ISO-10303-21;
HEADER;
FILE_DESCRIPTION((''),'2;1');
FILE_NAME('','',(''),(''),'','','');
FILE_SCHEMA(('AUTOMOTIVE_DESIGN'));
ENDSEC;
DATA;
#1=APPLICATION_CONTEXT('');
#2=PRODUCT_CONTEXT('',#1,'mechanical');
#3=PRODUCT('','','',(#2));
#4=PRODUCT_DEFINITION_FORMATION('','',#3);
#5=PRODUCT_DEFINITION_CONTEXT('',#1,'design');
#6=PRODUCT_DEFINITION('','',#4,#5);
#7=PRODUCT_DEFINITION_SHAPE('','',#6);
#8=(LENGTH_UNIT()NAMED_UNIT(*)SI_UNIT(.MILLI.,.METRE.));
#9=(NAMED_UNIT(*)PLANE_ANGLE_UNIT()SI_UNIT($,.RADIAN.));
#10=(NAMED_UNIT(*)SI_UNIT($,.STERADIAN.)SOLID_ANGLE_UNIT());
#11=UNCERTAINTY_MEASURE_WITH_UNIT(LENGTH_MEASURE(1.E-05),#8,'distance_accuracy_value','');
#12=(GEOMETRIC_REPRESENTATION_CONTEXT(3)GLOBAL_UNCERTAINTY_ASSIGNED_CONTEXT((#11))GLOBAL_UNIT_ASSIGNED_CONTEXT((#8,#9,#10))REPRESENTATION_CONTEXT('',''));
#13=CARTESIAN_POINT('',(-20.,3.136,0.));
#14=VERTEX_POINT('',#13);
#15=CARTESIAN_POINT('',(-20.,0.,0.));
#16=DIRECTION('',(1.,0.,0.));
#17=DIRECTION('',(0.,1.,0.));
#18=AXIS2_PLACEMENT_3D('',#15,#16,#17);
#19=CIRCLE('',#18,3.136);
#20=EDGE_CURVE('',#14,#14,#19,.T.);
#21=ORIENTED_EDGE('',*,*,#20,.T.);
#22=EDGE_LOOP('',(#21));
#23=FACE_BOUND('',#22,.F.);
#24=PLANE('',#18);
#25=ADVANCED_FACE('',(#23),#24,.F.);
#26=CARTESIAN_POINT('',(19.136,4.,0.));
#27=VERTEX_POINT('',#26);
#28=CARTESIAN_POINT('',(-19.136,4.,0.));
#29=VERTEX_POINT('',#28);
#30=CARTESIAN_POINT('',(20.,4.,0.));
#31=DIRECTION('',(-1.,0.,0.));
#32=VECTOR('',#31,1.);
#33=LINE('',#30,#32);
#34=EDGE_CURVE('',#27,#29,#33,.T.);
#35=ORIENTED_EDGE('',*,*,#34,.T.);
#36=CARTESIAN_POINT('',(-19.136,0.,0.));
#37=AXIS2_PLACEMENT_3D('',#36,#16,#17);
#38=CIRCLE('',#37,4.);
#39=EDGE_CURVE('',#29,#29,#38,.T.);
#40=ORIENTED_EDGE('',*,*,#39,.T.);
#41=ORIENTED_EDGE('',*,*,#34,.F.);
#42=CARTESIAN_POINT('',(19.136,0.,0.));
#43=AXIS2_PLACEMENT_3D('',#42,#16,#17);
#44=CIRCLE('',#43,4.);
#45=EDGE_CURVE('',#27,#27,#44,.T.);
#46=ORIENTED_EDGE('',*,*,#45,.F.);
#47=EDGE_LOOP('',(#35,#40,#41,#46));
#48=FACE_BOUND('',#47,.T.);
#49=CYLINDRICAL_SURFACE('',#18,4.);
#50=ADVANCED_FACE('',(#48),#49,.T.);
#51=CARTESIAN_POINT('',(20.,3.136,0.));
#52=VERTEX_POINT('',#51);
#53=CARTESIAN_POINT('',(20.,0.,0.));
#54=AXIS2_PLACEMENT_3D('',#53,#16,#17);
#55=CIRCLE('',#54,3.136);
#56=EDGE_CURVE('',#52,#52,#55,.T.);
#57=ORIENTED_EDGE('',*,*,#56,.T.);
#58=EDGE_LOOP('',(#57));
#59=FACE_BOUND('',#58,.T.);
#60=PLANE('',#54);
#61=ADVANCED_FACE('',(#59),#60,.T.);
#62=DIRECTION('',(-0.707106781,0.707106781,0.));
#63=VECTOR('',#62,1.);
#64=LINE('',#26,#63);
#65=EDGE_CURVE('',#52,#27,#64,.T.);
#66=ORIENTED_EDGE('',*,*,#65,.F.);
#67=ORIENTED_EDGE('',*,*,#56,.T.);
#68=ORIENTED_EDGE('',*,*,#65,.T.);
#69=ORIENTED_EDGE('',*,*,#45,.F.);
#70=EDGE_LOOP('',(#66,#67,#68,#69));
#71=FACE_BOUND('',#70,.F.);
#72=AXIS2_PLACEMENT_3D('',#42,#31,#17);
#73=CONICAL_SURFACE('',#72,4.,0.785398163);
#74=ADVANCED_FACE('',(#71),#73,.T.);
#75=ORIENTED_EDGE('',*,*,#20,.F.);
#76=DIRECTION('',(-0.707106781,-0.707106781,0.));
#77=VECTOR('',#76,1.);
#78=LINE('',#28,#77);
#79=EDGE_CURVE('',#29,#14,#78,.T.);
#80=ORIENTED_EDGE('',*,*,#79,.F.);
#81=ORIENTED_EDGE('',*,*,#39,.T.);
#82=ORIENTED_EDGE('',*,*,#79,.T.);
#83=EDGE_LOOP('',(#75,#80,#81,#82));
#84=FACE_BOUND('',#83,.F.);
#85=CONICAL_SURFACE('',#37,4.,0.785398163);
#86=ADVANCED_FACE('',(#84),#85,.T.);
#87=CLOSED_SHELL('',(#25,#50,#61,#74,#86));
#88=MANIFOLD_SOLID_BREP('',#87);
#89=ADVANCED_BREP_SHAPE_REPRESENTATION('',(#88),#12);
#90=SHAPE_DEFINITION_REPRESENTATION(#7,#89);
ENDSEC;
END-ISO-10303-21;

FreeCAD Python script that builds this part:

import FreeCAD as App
import Part
import Sketcher

V = App.Vector
Q = App.Units.Quantity


def edges_at(feature, points):
    """Names of the edges that pass closest to the given points."""
    edges = feature.Shape.Edges
    near = lambda p: min(range(len(edges)), key=lambda i: edges[i].distToShape(Part.Vertex(*p))[0])
    return sorted({f"Edge{near(p) + 1}" for p in points})

doc = App.newDocument("Part")
body = doc.addObject("PartDesign::Body", "Body")

# Sketch on XY plane
sketch1 = doc.addObject("Sketcher::SketchObject", "Sketch")
body.addObject(sketch1)
sketch1.AttachmentSupport = (doc.XY_Plane, [""])
sketch1.MapMode = "FlatFace"
sketch1.addGeometry(Part.LineSegment(V(20, 0, 0), V(20, 4, 0)), False)
sketch1.addGeometry(Part.LineSegment(V(20, 4, 0), V(-20, 4, 0)), False)
sketch1.addGeometry(Part.LineSegment(V(-20, 4, 0), V(-20, 0, 0)), False)
sketch1.addGeometry(Part.LineSegment(V(-20, 0, 0), V(20, 0, 0)), False)
sketch1.addConstraint(Sketcher.Constraint("Coincident", 0, 2, 1, 1))
sketch1.addConstraint(Sketcher.Constraint("Coincident", 1, 2, 2, 1))
sketch1.addConstraint(Sketcher.Constraint("Coincident", 2, 2, 3, 1))
sketch1.addConstraint(Sketcher.Constraint("Coincident", 3, 2, 0, 1))
sketch1.addConstraint(Sketcher.Constraint("Vertical", 0))
sketch1.addConstraint(Sketcher.Constraint("Horizontal", 1))
sketch1.addConstraint(Sketcher.Constraint("Vertical", 2))
sketch1.addConstraint(Sketcher.Constraint("Horizontal", 3))
sketch1.addConstraint(Sketcher.Constraint("Symmetric", 2, 2, 3, 2, -1, 1))
sketch1.addConstraint(Sketcher.Constraint("DistanceX", 1, 2, 1, 1, Q("40 mm")))
sketch1.addConstraint(Sketcher.Constraint("DistanceY", 0, 1, 0, 2, Q("4 mm")))
revolution = doc.addObject("PartDesign::Revolution", "Revolution")
body.addObject(revolution)
revolution.Profile = sketch1
revolution.ReferenceAxis = (sketch1, ["H_Axis"])
revolution.Angle = 360
doc.recompute()

chamfer = doc.addObject("PartDesign::Chamfer", "Chamfer")
body.addObject(chamfer)
chamfer.Base = (revolution, edges_at(revolution, [(20, -4, 0)]))
chamfer.Size = 0.864
doc.recompute()

chamfer2 = doc.addObject("PartDesign::Chamfer", "Chamfer001")
body.addObject(chamfer2)
chamfer2.Base = (chamfer, edges_at(chamfer, [(-20, -4, 0)]))
chamfer2.Size = 0.864

doc.recompute()
